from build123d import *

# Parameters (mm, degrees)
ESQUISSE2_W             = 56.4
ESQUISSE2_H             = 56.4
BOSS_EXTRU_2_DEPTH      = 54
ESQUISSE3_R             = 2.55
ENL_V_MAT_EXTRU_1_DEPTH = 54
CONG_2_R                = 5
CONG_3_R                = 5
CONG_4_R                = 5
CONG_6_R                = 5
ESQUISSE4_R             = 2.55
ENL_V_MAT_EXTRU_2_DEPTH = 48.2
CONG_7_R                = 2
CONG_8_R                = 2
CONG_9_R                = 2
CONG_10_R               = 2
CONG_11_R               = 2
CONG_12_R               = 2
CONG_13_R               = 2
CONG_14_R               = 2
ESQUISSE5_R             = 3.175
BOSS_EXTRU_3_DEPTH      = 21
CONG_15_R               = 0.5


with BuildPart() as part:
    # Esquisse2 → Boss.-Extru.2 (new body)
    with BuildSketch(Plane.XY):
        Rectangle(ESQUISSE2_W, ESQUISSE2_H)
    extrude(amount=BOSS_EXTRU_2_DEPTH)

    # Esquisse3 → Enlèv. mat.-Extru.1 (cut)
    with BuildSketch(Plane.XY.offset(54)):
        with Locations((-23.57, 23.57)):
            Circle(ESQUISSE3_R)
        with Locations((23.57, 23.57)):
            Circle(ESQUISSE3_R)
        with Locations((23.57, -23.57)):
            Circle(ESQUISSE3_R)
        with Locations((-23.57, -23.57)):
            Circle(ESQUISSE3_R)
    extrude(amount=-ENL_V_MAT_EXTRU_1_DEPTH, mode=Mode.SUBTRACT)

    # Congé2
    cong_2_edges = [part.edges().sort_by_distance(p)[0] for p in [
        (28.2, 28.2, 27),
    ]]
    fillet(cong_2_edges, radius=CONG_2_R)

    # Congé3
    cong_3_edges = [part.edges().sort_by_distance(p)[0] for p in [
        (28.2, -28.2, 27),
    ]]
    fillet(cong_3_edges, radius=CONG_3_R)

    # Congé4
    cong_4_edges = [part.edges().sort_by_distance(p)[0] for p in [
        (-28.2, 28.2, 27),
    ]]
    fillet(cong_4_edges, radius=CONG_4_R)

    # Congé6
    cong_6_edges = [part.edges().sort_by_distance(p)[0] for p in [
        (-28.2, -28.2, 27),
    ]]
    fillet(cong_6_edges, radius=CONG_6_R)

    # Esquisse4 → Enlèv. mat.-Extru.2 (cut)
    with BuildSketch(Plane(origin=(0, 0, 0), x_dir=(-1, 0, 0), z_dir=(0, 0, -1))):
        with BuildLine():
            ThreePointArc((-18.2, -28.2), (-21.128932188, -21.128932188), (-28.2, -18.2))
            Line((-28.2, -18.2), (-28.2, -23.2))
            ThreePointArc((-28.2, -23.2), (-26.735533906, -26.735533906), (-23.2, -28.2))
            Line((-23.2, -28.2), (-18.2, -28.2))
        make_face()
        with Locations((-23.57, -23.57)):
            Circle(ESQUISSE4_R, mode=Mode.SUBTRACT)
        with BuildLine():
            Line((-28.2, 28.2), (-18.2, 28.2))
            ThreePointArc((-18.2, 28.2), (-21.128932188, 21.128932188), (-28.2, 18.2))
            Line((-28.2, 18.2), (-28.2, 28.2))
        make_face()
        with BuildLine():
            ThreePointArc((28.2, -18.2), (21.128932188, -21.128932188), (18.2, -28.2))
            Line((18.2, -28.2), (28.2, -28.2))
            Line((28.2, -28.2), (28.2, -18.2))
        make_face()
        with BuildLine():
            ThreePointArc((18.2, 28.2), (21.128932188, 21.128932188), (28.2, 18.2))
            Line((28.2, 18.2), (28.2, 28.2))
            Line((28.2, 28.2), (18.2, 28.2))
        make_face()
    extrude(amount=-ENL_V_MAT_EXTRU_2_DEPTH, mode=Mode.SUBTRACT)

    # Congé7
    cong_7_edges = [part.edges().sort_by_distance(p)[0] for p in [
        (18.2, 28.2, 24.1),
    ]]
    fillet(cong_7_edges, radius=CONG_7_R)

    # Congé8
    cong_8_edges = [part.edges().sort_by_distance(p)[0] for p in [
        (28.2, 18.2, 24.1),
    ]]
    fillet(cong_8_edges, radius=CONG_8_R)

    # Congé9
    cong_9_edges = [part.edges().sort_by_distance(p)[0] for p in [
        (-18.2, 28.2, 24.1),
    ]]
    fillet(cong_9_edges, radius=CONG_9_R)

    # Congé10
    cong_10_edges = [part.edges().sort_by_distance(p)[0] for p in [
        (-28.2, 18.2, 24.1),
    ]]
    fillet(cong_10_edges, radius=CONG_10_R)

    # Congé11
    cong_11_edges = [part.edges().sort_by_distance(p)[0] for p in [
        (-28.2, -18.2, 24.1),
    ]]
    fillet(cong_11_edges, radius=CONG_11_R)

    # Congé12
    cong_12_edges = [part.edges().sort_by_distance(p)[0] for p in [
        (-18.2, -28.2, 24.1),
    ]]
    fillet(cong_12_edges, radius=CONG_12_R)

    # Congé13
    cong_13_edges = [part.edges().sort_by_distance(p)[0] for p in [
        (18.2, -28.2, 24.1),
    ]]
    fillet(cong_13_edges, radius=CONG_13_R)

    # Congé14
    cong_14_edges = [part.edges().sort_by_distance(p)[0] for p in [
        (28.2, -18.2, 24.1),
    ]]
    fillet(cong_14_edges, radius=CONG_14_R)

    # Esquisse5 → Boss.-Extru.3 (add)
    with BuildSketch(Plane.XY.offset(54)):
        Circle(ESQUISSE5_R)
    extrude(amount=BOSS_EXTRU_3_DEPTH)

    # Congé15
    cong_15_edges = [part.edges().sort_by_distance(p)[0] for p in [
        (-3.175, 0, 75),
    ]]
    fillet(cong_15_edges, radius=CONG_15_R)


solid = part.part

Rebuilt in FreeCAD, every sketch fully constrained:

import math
import FreeCAD as App
import Part
import Sketcher
from FreeCAD import Vector


def edges_at(feature, points):
    """Names of the edges that pass closest to the given points."""
    edges = feature.Shape.Edges
    near = lambda p: min(range(len(edges)), key=lambda i: edges[i].distToShape(Part.Vertex(*p))[0])
    return sorted({f"Edge{near(p) + 1}" for p in points})

doc = App.newDocument("Part")
body = doc.addObject("PartDesign::Body", "Body")

# Sketch on XY plane
sketch1 = body.newObject("Sketcher::SketchObject", "Sketch")
sketch1.AttachmentSupport = (doc.getObject("XY_Plane"), [""])
sketch1.MapMode = "FlatFace"
sketch1.addGeometry(Part.LineSegment(Vector(-28.2, 28.2, 0), Vector(-28.2, -28.2, 0)), False)
sketch1.addGeometry(Part.LineSegment(Vector(-28.2, -28.2, 0), Vector(28.2, -28.2, 0)), False)
sketch1.addGeometry(Part.LineSegment(Vector(28.2, -28.2, 0), Vector(28.2, 28.2, 0)), False)
sketch1.addGeometry(Part.LineSegment(Vector(28.2, 28.2, 0), Vector(-28.2, 28.2, 0)), False)
sketch1.addConstraint(Sketcher.Constraint("Coincident", 0, 2, 1, 1))
sketch1.addConstraint(Sketcher.Constraint("Coincident", 1, 2, 2, 1))
sketch1.addConstraint(Sketcher.Constraint("Coincident", 2, 2, 3, 1))
sketch1.addConstraint(Sketcher.Constraint("Coincident", 3, 2, 0, 1))
sketch1.addConstraint(Sketcher.Constraint("Vertical", 0))
sketch1.addConstraint(Sketcher.Constraint("Horizontal", 1))
sketch1.addConstraint(Sketcher.Constraint("Vertical", 2))
sketch1.addConstraint(Sketcher.Constraint("Horizontal", 3))
sketch1.addConstraint(Sketcher.Constraint("Symmetric", 0, 2, 2, 2, -1, 1))
sketch1.addConstraint(Sketcher.Constraint("Equal", 3, 0))
sketch1.addConstraint(Sketcher.Constraint("DistanceX", 1, 1, 1, 2, 56.4))
pad1 = body.newObject("PartDesign::Pad", "Pad")
pad1.Profile = sketch1
pad1.Length = 54

# Sketch on XY plane
sketch2 = body.newObject("Sketcher::SketchObject", "Sketch001")
sketch2.AttachmentSupport = (doc.getObject("XY_Plane"), [""])
sketch2.MapMode = "FlatFace"
sketch2.AttachmentOffset = App.Placement(Vector(0, 0, 54), App.Rotation())
sketch2.addGeometry(Part.Circle(Vector(-23.57, 23.57, 0), Vector(0, 0, 1), 2.55), False)
sketch2.addGeometry(Part.Circle(Vector(23.57, 23.57, 0), Vector(0, 0, 1), 2.55), False)
sketch2.addGeometry(Part.Circle(Vector(23.57, -23.57, 0), Vector(0, 0, 1), 2.55), False)
sketch2.addGeometry(Part.Circle(Vector(-23.57, -23.57, 0), Vector(0, 0, 1), 2.55), False)
sketch2.addConstraint(Sketcher.Constraint("Equal", 0, 1))
sketch2.addConstraint(Sketcher.Constraint("Equal", 1, 2))
sketch2.addConstraint(Sketcher.Constraint("Equal", 2, 3))
sketch2.addConstraint(Sketcher.Constraint("Symmetric", 0, 3, 2, 3, -1, 1))
sketch2.addConstraint(Sketcher.Constraint("Symmetric", 1, 3, 3, 3, -1, 1))
sketch2.addConstraint(Sketcher.Constraint("Symmetric", 0, 3, 1, 3, -2))
sketch2.addConstraint(Sketcher.Constraint("Diameter", 0, 5.1))
sketch2.addConstraint(Sketcher.Constraint("DistanceX", 0, 3, -1, 1, 23.57))
sketch2.addConstraint(Sketcher.Constraint("DistanceY", -1, 1, 0, 3, 23.57))
pocket1 = body.newObject("PartDesign::Pocket", "Pocket")
pocket1.Profile = sketch2
pocket1.Length = 54
doc.recompute()

fillet = body.newObject("PartDesign::Fillet", "Fillet")
fillet.Base = (pocket1, edges_at(pocket1, [(28.2, 28.2, 27)]))
fillet.Radius = 5
doc.recompute()

fillet2 = body.newObject("PartDesign::Fillet", "Fillet001")
fillet2.Base = (fillet, edges_at(fillet, [(28.2, -28.2, 27)]))
fillet2.Radius = 5
doc.recompute()

fillet3 = body.newObject("PartDesign::Fillet", "Fillet002")
fillet3.Base = (fillet2, edges_at(fillet2, [(-28.2, 28.2, 27)]))
fillet3.Radius = 5
doc.recompute()

fillet4 = body.newObject("PartDesign::Fillet", "Fillet003")
fillet4.Base = (fillet3, edges_at(fillet3, [(-28.2, -28.2, 27)]))
fillet4.Radius = 5

# Sketch on XY plane
sketch3 = body.newObject("Sketcher::SketchObject", "Sketch002")
sketch3.AttachmentSupport = (doc.getObject("XY_Plane"), [""])
sketch3.MapMode = "FlatFace"
sketch3.addGeometry(Part.ArcOfCircle(Part.Circle(Vector(28.2, -28.2, 0), Vector(0, 0, 1), 10), math.radians(90), math.radians(180)), False)
sketch3.addGeometry(Part.LineSegment(Vector(28.2, -18.2, 0), Vector(28.2, -23.2, 0)), False)
sketch3.addGeometry(Part.ArcOfCircle(Part.Circle(Vector(23.2, -23.2, 0), Vector(0, 0, 1), 5), math.radians(-90), math.radians(0)), False)
sketch3.addGeometry(Part.LineSegment(Vector(23.2, -28.2, 0), Vector(18.2, -28.2, 0)), False)
sketch3.addGeometry(Part.Circle(Vector(23.57, -23.57, 0), Vector(0, 0, 1), 2.55), False)
sketch3.addGeometry(Part.LineSegment(Vector(18.2, 28.2, 0), Vector(28.2, 28.2, 0)), False)
sketch3.addGeometry(Part.LineSegment(Vector(28.2, 28.2, 0), Vector(28.2, 18.2, 0)), False)
sketch3.addGeometry(Part.ArcOfCircle(Part.Circle(Vector(28.2, 28.2, 0), Vector(0, 0, 1), 10), math.radians(180), math.radians(270)), False)
sketch3.addGeometry(Part.ArcOfCircle(Part.Circle(Vector(-28.2, -28.2, 0), Vector(0, 0, 1), 10), math.radians(0), math.radians(90)), False)
sketch3.addGeometry(Part.LineSegment(Vector(-18.2, -28.2, 0), Vector(-28.2, -28.2, 0)), False)
sketch3.addGeometry(Part.LineSegment(Vector(-28.2, -28.2, 0), Vector(-28.2, -18.2, 0)), False)
sketch3.addGeometry(Part.ArcOfCircle(Part.Circle(Vector(-28.2, 28.2, 0), Vector(0, 0, 1), 10), math.radians(-90), math.radians(0)), False)
sketch3.addGeometry(Part.LineSegment(Vector(-28.2, 18.2, 0), Vector(-28.2, 28.2, 0)), False)
sketch3.addGeometry(Part.LineSegment(Vector(-28.2, 28.2, 0), Vector(-18.2, 28.2, 0)), False)
sketch3.addConstraint(Sketcher.Constraint("Coincident", 0, 1, 1, 1))
sketch3.addConstraint(Sketcher.Constraint("Tangent", 1, 2, 2, 2))
sketch3.addConstraint(Sketcher.Constraint("Tangent", 2, 1, 3, 1))
sketch3.addConstraint(Sketcher.Constraint("Coincident", 3, 2, 0, 2))
sketch3.addConstraint(Sketcher.Constraint("Coincident", 5, 2, 6, 1))
sketch3.addConstraint(Sketcher.Constraint("Coincident", 6, 2, 7, 2))
sketch3.addConstraint(Sketcher.Constraint("Coincident", 7, 1, 5, 1))
sketch3.addConstraint(Sketcher.Constraint("Coincident", 8, 1, 9, 1))
sketch3.addConstraint(Sketcher.Constraint("Coincident", 9, 2, 10, 1))
sketch3.addConstraint(Sketcher.Constraint("Coincident", 10, 2, 8, 2))
sketch3.addConstraint(Sketcher.Constraint("Coincident", 11, 1, 12, 1))
sketch3.addConstraint(Sketcher.Constraint("Coincident", 12, 2, 13, 1))
sketch3.addConstraint(Sketcher.Constraint("Coincident", 13, 2, 11, 2))
sketch3.addConstraint(Sketcher.Constraint("Vertical", 1))
sketch3.addConstraint(Sketcher.Constraint("Horizontal", 3))
sketch3.addConstraint(Sketcher.Constraint("Horizontal", 5))
sketch3.addConstraint(Sketcher.Constraint("Vertical", 6))
sketch3.addConstraint(Sketcher.Constraint("Horizontal", 9))
sketch3.addConstraint(Sketcher.Constraint("Vertical", 10))
sketch3.addConstraint(Sketcher.Constraint("Vertical", 12))
sketch3.addConstraint(Sketcher.Constraint("Horizontal", 13))
sketch3.addConstraint(Sketcher.Constraint("Coincident", 5, 2, 7, 3))
sketch3.addConstraint(Sketcher.Constraint("Coincident", 9, 2, 8, 3))
sketch3.addConstraint(Sketcher.Constraint("Coincident", 12, 2, 11, 3))
sketch3.addConstraint(Sketcher.Constraint("Equal", 0, 7))
sketch3.addConstraint(Sketcher.Constraint("Equal", 7, 8))
sketch3.addConstraint(Sketcher.Constraint("Equal", 8, 11))
sketch3.addConstraint(Sketcher.Constraint("Symmetric", 7, 3, 8, 3, -1, 1))
sketch3.addConstraint(Sketcher.Constraint("Symmetric", 0, 3, 11, 3, -1, 1))
sketch3.addConstraint(Sketcher.Constraint("Symmetric", 0, 3, 8, 3, -2))
sketch3.addConstraint(Sketcher.Constraint("Horizontal", 8, 3, 2, 1))
sketch3.addConstraint(Sketcher.Constraint("Vertical", 7, 3, 0, 1))
sketch3.addConstraint(Sketcher.Constraint("Radius", 0, 10.0))
sketch3.addConstraint(Sketcher.Constraint("Radius", 2, 5.0))
sketch3.addConstraint(Sketcher.Constraint("Diameter", 4, 5.1))
sketch3.addConstraint(Sketcher.Constraint("DistanceX", -1, 1, 0, 3, 28.2))
sketch3.addConstraint(Sketcher.Constraint("DistanceY", 0, 3, -1, 1, 28.2))
sketch3.addConstraint(Sketcher.Constraint("DistanceX", -1, 1, 4, 3, 23.57))
sketch3.addConstraint(Sketcher.Constraint("DistanceY", 4, 3, -1, 1, 23.57))
pocket2 = body.newObject("PartDesign::Pocket", "Pocket001")
pocket2.Profile = sketch3
pocket2.Length = 48.2
pocket2.Reversed = True
doc.recompute()

fillet5 = body.newObject("PartDesign::Fillet", "Fillet004")
fillet5.Base = (pocket2, edges_at(pocket2, [(18.2, 28.2, 24.1)]))
fillet5.Radius = 2
doc.recompute()

fillet6 = body.newObject("PartDesign::Fillet", "Fillet005")
fillet6.Base = (fillet5, edges_at(fillet5, [(28.2, 18.2, 24.1)]))
fillet6.Radius = 2
doc.recompute()

fillet7 = body.newObject("PartDesign::Fillet", "Fillet006")
fillet7.Base = (fillet6, edges_at(fillet6, [(-18.2, 28.2, 24.1)]))
fillet7.Radius = 2
doc.recompute()

fillet8 = body.newObject("PartDesign::Fillet", "Fillet007")
fillet8.Base = (fillet7, edges_at(fillet7, [(-28.2, 18.2, 24.1)]))
fillet8.Radius = 2
doc.recompute()

fillet9 = body.newObject("PartDesign::Fillet", "Fillet008")
fillet9.Base = (fillet8, edges_at(fillet8, [(-28.2, -18.2, 24.1)]))
fillet9.Radius = 2
doc.recompute()

fillet10 = body.newObject("PartDesign::Fillet", "Fillet009")
fillet10.Base = (fillet9, edges_at(fillet9, [(-18.2, -28.2, 24.1)]))
fillet10.Radius = 2
doc.recompute()

fillet11 = body.newObject("PartDesign::Fillet", "Fillet010")
fillet11.Base = (fillet10, edges_at(fillet10, [(18.2, -28.2, 24.1)]))
fillet11.Radius = 2
doc.recompute()

fillet12 = body.newObject("PartDesign::Fillet", "Fillet011")
fillet12.Base = (fillet11, edges_at(fillet11, [(28.2, -18.2, 24.1)]))
fillet12.Radius = 2

# Sketch on XY plane
sketch4 = body.newObject("Sketcher::SketchObject", "Sketch003")
sketch4.AttachmentSupport = (doc.getObject("XY_Plane"), [""])
sketch4.MapMode = "FlatFace"
sketch4.AttachmentOffset = App.Placement(Vector(0, 0, 54), App.Rotation())
sketch4.addGeometry(Part.Circle(Vector(0, 0, 0), Vector(0, 0, 1), 3.175), False)
sketch4.addConstraint(Sketcher.Constraint("Coincident", 0, 3, -1, 1))
sketch4.addConstraint(Sketcher.Constraint("Diameter", 0, 6.35))
pad2 = body.newObject("PartDesign::Pad", "Pad001")
pad2.Profile = sketch4
pad2.Length = 21
doc.recompute()

fillet13 = body.newObject("PartDesign::Fillet", "Fillet012")
fillet13.Base = (pad2, edges_at(pad2, [(-3.175, 0, 75)]))
fillet13.Radius = 0.5

doc.recompute()
